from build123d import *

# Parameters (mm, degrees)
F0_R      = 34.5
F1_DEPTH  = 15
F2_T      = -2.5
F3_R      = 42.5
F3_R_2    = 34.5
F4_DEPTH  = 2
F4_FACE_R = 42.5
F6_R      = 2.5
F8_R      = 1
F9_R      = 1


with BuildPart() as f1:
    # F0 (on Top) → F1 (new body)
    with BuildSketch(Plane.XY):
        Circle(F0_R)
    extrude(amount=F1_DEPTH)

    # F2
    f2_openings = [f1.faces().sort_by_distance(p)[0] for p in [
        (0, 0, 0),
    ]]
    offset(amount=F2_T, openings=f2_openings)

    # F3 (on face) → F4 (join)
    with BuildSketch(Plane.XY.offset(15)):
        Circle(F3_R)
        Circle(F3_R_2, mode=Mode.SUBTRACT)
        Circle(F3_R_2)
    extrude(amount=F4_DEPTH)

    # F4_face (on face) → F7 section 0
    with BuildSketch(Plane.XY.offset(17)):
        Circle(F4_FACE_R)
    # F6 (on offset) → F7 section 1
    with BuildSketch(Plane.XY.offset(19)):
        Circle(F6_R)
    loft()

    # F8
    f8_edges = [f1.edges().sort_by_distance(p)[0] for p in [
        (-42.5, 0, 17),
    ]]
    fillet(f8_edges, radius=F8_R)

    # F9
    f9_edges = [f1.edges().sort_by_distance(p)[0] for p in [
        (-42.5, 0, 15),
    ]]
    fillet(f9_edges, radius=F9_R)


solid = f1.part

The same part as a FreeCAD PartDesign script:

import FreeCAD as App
import Part
import Sketcher
Q = App.Units.Quantity


def edges_at(feature, points):
    """Names of the edges that pass closest to the given points."""
    edges = feature.Shape.Edges
    near = lambda p: min(range(len(edges)), key=lambda i: edges[i].distToShape(Part.Vertex(*p))[0])
    return sorted({f"Edge{near(p) + 1}" for p in points})


def faces_at(feature, points):
    """Names of the faces that lie closest to the given points."""
    faces = feature.Shape.Faces
    near = lambda p: min(range(len(faces)), key=lambda i: faces[i].distToShape(Part.Vertex(*p))[0])
    return sorted({f"Face{near(p) + 1}" for p in points})

doc = App.newDocument("Part")
params = doc.addObject("Spreadsheet::Sheet", "Params")
for row, (alias, value) in enumerate([
    ("sketch1_diameter", "69 mm"),
    ("pad1_length", "15 mm"),
    ("thickness_wall", "2.5 mm"),
    ("sketch2_diameter", "85 mm"),
    ("pad2_length", "2 mm"),
    ("sketch3_diameter", "85 mm"),
    ("sketch4_diameter", "5 mm"),
    ("fillet_radius", "1 mm"),
    ("fillet2_radius", "1 mm"),
], start=1):
    params.set(f"A{row}", alias)
    params.set(f"B{row}", "=" + value)
    params.setAlias(f"B{row}", alias)

body = doc.addObject("PartDesign::Body", "Body")

sketch1 = doc.addObject("Sketcher::SketchObject", "Sketch")
body.addObject(sketch1)
sketch1.AttachmentSupport = (doc.XY_Plane, [""])
sketch1.MapMode = "FlatFace"
sketch1.addGeometry(Part.Circle(App.Vector(0, 0, 0), App.Vector(0, 0, 1), 34.5), False)
sketch1.addConstraint([
    Sketcher.Constraint("Coincident", 0, 3, -1, 1),
    Sketcher.Constraint("Diameter", 0, Q("69 mm")),
])
sketch1.setExpression("Constraints[1]", "Params.sketch1_diameter")
pad1 = doc.addObject("PartDesign::Pad", "Pad")
body.addObject(pad1)
pad1.Profile = sketch1
pad1.setExpression("Length", "Params.pad1_length")
doc.recompute()

thickness = doc.addObject("PartDesign::Thickness", "Thickness")
body.addObject(thickness)
thickness.Base = (pad1, faces_at(pad1, [(0, 0, 0)]))
thickness.setExpression("Value", "Params.thickness_wall")
thickness.Reversed = True
thickness.Join = "Arc"

sketch2 = doc.addObject("Sketcher::SketchObject", "Sketch001")
body.addObject(sketch2)
sketch2.AttachmentSupport = (doc.XY_Plane, [""])
sketch2.MapMode = "FlatFace"
sketch2.AttachmentOffset = App.Placement(App.Vector(0, 0, 15), App.Rotation())
sketch2.addGeometry(Part.Circle(App.Vector(0, 0, 0), App.Vector(0, 0, 1), 42.5), False)
sketch2.addConstraint([
    Sketcher.Constraint("Coincident", 0, 3, -1, 1),
    Sketcher.Constraint("Diameter", 0, Q("85 mm")),
])
sketch2.setExpression("Constraints[1]", "Params.sketch2_diameter")
pad2 = doc.addObject("PartDesign::Pad", "Pad001")
body.addObject(pad2)
pad2.Profile = sketch2
pad2.setExpression("Length", "Params.pad2_length")

sketch3 = doc.addObject("Sketcher::SketchObject", "Sketch002")
body.addObject(sketch3)
sketch3.AttachmentSupport = (doc.XY_Plane, [""])
sketch3.MapMode = "FlatFace"
sketch3.AttachmentOffset = App.Placement(App.Vector(0, 0, 17), App.Rotation())
sketch3.addGeometry(Part.Circle(App.Vector(0, 0, 0), App.Vector(0, 0, 1), 42.5), False)
sketch3.addConstraint([
    Sketcher.Constraint("Coincident", 0, 3, -1, 1),
    Sketcher.Constraint("Diameter", 0, Q("85 mm")),
])
sketch3.setExpression("Constraints[1]", "Params.sketch3_diameter")

sketch4 = doc.addObject("Sketcher::SketchObject", "Sketch003")
body.addObject(sketch4)
sketch4.AttachmentSupport = (doc.XY_Plane, [""])
sketch4.MapMode = "FlatFace"
sketch4.AttachmentOffset = App.Placement(App.Vector(0, 0, 19), App.Rotation())
sketch4.addGeometry(Part.Circle(App.Vector(0, 0, 0), App.Vector(0, 0, 1), 2.5), False)
sketch4.addConstraint([
    Sketcher.Constraint("Coincident", 0, 3, -1, 1),
    Sketcher.Constraint("Diameter", 0, Q("5 mm")),
])
sketch4.setExpression("Constraints[1]", "Params.sketch4_diameter")

additiveloft = doc.addObject("PartDesign::AdditiveLoft", "AdditiveLoft")
body.addObject(additiveloft)
additiveloft.Profile = sketch3
additiveloft.Sections = [sketch4]
doc.recompute()

fillet = doc.addObject("PartDesign::Fillet", "Fillet")
body.addObject(fillet)
fillet.Base = (additiveloft, edges_at(additiveloft, [(-42.5, 0, 17)]))
fillet.setExpression("Radius", "Params.fillet_radius")
doc.recompute()

fillet2 = doc.addObject("PartDesign::Fillet", "Fillet001")
body.addObject(fillet2)
fillet2.Base = (fillet, edges_at(fillet, [(-42.5, 0, 15)]))
fillet2.setExpression("Radius", "Params.fillet2_radius")

doc.recompute()
